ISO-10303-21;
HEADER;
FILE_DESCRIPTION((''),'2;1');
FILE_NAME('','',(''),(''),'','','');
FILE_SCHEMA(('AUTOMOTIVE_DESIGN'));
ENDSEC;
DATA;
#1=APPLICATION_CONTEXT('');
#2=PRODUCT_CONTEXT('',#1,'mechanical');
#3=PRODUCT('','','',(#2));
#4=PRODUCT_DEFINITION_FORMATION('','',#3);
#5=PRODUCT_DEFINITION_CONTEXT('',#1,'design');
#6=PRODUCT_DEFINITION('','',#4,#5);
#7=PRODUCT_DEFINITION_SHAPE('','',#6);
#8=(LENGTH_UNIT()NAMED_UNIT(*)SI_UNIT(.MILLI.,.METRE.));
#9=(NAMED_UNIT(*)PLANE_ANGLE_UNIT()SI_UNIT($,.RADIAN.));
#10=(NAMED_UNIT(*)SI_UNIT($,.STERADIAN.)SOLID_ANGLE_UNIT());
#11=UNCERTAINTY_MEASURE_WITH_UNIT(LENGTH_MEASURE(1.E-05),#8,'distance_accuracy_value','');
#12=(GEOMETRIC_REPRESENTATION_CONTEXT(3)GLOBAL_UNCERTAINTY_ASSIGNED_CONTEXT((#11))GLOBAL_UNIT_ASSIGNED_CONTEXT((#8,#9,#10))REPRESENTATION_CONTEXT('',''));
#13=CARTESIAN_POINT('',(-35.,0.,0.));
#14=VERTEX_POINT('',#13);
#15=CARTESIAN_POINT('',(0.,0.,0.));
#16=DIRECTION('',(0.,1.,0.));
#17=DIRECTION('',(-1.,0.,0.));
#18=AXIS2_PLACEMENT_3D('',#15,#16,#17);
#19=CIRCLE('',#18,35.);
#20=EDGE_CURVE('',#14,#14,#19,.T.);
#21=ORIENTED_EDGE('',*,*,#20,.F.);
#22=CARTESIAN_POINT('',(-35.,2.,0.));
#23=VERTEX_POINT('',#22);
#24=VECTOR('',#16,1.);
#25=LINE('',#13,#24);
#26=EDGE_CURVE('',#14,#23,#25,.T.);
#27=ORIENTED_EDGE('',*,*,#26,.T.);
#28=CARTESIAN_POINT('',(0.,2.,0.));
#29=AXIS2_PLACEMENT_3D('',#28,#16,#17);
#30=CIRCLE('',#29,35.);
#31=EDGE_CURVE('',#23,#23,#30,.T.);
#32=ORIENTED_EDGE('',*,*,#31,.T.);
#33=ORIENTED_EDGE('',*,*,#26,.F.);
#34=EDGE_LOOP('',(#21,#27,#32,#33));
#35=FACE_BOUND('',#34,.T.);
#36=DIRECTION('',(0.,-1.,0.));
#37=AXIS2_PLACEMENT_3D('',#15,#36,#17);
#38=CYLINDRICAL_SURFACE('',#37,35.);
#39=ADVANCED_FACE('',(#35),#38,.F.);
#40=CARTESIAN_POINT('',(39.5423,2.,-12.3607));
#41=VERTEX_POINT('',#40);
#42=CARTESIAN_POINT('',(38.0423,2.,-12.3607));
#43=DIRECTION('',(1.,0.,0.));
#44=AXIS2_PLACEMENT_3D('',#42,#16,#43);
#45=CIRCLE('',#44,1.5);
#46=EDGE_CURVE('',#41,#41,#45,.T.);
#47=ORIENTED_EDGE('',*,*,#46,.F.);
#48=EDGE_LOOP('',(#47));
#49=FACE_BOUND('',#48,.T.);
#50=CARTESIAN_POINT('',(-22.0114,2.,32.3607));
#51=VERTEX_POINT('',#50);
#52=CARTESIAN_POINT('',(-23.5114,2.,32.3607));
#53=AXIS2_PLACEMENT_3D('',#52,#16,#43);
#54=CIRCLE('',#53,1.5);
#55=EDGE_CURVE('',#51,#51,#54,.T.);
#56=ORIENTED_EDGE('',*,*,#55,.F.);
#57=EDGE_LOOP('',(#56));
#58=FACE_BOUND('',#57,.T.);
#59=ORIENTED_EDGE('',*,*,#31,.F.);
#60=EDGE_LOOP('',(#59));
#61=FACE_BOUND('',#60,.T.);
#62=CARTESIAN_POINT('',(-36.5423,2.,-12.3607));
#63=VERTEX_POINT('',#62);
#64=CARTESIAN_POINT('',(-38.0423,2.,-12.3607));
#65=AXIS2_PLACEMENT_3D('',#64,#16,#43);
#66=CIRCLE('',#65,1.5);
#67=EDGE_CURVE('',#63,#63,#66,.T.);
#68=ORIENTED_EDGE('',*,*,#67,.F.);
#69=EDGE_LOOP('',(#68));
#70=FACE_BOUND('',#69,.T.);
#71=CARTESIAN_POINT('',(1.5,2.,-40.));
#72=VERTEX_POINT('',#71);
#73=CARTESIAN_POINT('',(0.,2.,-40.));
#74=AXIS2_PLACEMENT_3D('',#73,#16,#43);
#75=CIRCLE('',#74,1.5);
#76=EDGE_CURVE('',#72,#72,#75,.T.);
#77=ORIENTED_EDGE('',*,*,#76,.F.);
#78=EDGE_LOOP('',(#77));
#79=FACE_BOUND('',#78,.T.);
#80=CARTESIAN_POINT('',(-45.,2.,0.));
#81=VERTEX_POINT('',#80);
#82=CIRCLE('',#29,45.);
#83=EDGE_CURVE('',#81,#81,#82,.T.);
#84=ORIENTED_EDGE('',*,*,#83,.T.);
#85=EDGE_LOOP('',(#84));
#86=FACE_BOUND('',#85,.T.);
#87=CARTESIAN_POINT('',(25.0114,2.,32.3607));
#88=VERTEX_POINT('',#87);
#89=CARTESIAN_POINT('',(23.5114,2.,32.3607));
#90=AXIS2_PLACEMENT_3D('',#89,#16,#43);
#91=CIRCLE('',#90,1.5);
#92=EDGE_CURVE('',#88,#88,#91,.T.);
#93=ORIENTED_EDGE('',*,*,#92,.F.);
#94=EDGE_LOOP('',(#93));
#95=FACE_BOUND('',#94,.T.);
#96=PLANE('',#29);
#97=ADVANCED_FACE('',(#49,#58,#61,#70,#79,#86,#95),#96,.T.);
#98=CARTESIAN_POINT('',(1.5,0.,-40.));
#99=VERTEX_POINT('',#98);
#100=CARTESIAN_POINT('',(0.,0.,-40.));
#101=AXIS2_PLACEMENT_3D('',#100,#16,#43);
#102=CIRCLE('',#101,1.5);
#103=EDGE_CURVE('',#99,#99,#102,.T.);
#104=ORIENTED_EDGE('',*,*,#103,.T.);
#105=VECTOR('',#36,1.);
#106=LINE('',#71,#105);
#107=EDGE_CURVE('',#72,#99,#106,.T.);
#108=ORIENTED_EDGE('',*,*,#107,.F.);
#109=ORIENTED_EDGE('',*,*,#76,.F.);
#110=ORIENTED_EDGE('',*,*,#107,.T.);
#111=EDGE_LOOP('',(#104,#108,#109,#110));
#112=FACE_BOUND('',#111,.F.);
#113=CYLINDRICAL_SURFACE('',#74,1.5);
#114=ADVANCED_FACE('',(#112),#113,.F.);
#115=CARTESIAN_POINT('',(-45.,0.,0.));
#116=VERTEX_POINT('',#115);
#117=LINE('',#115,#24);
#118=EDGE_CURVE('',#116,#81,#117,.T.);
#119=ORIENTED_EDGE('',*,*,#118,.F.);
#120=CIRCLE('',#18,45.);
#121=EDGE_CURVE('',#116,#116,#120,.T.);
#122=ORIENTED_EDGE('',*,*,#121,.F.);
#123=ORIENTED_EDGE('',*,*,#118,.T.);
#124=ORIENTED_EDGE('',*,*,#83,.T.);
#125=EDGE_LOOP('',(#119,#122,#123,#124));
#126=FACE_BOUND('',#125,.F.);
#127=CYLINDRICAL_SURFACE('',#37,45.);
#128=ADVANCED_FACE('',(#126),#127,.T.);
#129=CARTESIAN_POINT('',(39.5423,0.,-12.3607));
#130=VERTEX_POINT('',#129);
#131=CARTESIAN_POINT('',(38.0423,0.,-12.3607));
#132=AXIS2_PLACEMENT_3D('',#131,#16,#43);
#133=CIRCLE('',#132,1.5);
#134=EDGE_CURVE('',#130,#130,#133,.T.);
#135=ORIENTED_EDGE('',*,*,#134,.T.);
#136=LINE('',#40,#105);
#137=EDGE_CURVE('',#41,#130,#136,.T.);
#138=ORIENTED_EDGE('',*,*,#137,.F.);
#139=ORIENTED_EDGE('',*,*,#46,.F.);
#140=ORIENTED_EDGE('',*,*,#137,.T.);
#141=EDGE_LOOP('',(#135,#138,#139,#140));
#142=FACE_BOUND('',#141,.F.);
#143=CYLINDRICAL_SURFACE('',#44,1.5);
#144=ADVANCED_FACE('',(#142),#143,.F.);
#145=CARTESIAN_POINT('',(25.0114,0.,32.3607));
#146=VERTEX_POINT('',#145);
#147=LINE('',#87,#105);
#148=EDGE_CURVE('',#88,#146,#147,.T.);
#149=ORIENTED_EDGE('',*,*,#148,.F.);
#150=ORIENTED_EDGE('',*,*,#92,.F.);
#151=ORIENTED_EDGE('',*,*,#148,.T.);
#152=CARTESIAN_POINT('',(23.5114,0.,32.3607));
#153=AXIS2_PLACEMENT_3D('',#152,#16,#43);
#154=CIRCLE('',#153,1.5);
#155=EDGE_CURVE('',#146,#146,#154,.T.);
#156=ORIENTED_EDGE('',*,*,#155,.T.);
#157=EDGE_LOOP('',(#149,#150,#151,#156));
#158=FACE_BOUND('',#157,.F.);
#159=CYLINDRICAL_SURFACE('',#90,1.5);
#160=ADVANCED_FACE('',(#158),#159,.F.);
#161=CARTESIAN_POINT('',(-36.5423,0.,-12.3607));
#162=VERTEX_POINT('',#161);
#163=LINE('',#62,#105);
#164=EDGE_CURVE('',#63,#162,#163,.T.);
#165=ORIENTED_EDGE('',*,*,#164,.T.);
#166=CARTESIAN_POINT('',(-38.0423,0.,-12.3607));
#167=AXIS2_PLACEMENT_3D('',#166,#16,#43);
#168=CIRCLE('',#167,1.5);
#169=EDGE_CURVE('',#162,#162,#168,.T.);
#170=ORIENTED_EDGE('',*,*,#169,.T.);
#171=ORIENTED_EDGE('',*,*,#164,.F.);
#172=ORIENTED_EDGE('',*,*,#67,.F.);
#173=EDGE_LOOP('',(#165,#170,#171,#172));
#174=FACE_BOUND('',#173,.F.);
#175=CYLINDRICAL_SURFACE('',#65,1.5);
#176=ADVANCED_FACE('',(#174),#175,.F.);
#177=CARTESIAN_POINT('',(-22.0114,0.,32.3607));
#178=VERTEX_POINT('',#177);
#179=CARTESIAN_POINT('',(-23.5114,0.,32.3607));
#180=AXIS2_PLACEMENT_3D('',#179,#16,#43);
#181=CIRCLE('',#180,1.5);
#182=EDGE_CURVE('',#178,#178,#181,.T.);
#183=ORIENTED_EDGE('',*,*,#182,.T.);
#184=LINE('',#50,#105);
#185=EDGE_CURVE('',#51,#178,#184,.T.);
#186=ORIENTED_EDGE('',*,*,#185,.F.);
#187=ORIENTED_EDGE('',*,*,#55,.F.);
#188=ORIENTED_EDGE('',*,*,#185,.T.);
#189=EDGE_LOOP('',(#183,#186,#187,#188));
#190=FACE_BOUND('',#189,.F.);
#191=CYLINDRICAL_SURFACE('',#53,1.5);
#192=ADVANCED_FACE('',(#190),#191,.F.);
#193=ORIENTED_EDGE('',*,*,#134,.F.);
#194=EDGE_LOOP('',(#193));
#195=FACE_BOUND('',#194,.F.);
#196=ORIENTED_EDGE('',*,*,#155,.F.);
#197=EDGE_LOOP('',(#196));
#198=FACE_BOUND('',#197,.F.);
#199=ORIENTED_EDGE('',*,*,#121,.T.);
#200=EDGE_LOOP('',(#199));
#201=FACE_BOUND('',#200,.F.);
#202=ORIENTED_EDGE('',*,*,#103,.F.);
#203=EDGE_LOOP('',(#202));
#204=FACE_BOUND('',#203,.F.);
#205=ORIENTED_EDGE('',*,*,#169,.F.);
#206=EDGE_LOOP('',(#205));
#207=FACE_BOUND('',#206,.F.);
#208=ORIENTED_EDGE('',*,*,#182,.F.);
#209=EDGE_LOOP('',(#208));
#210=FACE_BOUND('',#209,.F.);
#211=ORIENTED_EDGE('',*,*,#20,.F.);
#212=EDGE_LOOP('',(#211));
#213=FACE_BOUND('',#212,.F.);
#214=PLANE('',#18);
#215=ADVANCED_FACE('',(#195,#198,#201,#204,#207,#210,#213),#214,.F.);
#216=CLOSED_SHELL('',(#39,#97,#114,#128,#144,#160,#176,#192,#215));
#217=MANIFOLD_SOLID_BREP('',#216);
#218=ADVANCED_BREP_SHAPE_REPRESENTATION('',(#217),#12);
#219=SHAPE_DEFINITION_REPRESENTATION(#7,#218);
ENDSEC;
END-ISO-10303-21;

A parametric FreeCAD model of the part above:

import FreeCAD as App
import Part
import Sketcher

V = App.Vector

doc = App.newDocument("Part")
body = doc.addObject("PartDesign::Body", "Body")

sketch1 = doc.addObject("Sketcher::SketchObject", "Sketch")
body.addObject(sketch1)
sketch1.AttachmentSupport = (doc.XZ_Plane, [""])
sketch1.MapMode = "FlatFace"
sketch1.addGeometry(Part.Circle(V(0, 0, 0), V(0, 0, 1), 45), False)
sketch1.addGeometry(Part.Circle(V(0, 0, 0), V(0, 0, 1), 35), False)
sketch1.addConstraint(Sketcher.Constraint("Coincident", 0, 3, -1, 1))
sketch1.addConstraint(Sketcher.Constraint("Coincident", 1, 3, -1, 1))
sketch1.addConstraint(Sketcher.Constraint("Diameter", 1, 70.0))
sketch1.addConstraint(Sketcher.Constraint("Diameter", 0, 90.0))
pad1 = doc.addObject("PartDesign::Pad", "Pad")
body.addObject(pad1)
pad1.Profile = sketch1
pad1.Length = 2
pad1.Reversed = True

sketch2 = doc.addObject("Sketcher::SketchObject", "Sketch001")
body.addObject(sketch2)
sketch2.AttachmentSupport = (doc.XZ_Plane, [""])
sketch2.MapMode = "FlatFace"
sketch2.AttachmentOffset = App.Placement(V(0, 0, -2), App.Rotation())
sketch2.addGeometry(Part.Circle(V(0, -40, 0), V(0, 0, 1), 1.5), False)
sketch2.addGeometry(Part.Circle(V(-38, -12.4, 0), V(0, 0, 1), 1.5), False)
sketch2.addGeometry(Part.Circle(V(-23.5, 32.4, 0), V(0, 0, 1), 1.5), False)
sketch2.addGeometry(Part.Circle(V(23.5, 32.4, 0), V(0, 0, 1), 1.5), False)
sketch2.addGeometry(Part.Circle(V(38, -12.4, 0), V(0, 0, 1), 1.5), False)
sketch2.addConstraint(Sketcher.Constraint("Equal", 0, 1))
sketch2.addConstraint(Sketcher.Constraint("Equal", 1, 2))
sketch2.addConstraint(Sketcher.Constraint("Equal", 2, 3))
sketch2.addConstraint(Sketcher.Constraint("Equal", 3, 4))
sketch2.addConstraint(Sketcher.Constraint("Symmetric", 2, 3, 3, 3, -2))
sketch2.addConstraint(Sketcher.Constraint("Symmetric", 1, 3, 4, 3, -2))
sketch2.addConstraint(Sketcher.Constraint("PointOnObject", 0, 3, -2))
sketch2.addConstraint(Sketcher.Constraint("Diameter", 0, 3.0))
sketch2.addConstraint(Sketcher.Constraint("DistanceY", 0, 3, -1, 1, 40.0))
sketch2.addConstraint(Sketcher.Constraint("DistanceX", 1, 3, 2, 3, 14.531))
sketch2.addConstraint(Sketcher.Constraint("DistanceX", 1, 3, -1, 1, 38.0423))
sketch2.addConstraint(Sketcher.Constraint("DistanceY", 1, 3, -1, 1, 12.3607))
sketch2.addConstraint(Sketcher.Constraint("DistanceY", -1, 1, 2, 3, 32.3607))
pocket1 = doc.addObject("PartDesign::Pocket", "Pocket")
body.addObject(pocket1)
pocket1.Profile = sketch2
pocket1.Length = 3
pocket1.Reversed = True

doc.recompute()
